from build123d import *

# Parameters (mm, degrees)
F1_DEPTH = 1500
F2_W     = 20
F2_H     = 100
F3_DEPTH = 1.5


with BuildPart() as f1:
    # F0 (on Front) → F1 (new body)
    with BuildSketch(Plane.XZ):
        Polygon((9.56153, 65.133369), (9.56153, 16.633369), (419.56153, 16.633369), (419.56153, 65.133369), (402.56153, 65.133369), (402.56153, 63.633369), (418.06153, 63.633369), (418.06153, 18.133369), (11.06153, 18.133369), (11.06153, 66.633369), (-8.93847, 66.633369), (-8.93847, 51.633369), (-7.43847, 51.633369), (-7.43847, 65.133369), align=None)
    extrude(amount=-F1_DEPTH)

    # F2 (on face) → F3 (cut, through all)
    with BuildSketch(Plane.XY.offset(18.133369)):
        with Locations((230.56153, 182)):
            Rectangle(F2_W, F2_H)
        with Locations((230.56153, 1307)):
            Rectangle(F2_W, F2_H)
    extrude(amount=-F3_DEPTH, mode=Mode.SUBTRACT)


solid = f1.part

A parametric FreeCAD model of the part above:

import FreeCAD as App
import Part
import Sketcher

V = App.Vector
Q = App.Units.Quantity

doc = App.newDocument("Part")
body = doc.addObject("PartDesign::Body", "Body")

sketch1 = body.newObject("Sketcher::SketchObject", "Sketch")
sketch1.AttachmentSupport = (doc.getObject("XZ_Plane"), [""])
sketch1.MapMode = "FlatFace"
sketch1.addGeometry([
    Part.LineSegment(V(9.6, 65.1, 0), V(9.6, 16.6, 0)),
    Part.LineSegment(V(9.6, 16.6, 0), V(419.6, 16.6, 0)),
    Part.LineSegment(V(419.6, 16.6, 0), V(419.6, 65.1, 0)),
    Part.LineSegment(V(419.6, 65.1, 0), V(402.6, 65.1, 0)),
    Part.LineSegment(V(402.6, 65.1, 0), V(402.6, 63.6, 0)),
    Part.LineSegment(V(402.6, 63.6, 0), V(418.1, 63.6, 0)),
    Part.LineSegment(V(418.1, 63.6, 0), V(418.1, 18.1, 0)),
    Part.LineSegment(V(418.1, 18.1, 0), V(11.1, 18.1, 0)),
    Part.LineSegment(V(11.1, 18.1, 0), V(11.1, 66.6, 0)),
    Part.LineSegment(V(11.1, 66.6, 0), V(-8.9, 66.6, 0)),
    Part.LineSegment(V(-8.9, 66.6, 0), V(-8.9, 51.6, 0)),
    Part.LineSegment(V(-8.9, 51.6, 0), V(-7.4, 51.6, 0)),
    Part.LineSegment(V(-7.4, 51.6, 0), V(-7.4, 65.1, 0)),
    Part.LineSegment(V(-7.4, 65.1, 0), V(9.6, 65.1, 0)),
], False)
sketch1.addConstraint([
    Sketcher.Constraint("Coincident", 0, 2, 1, 1),
    Sketcher.Constraint("Coincident", 1, 2, 2, 1),
    Sketcher.Constraint("Coincident", 2, 2, 3, 1),
    Sketcher.Constraint("Coincident", 3, 2, 4, 1),
    Sketcher.Constraint("Coincident", 4, 2, 5, 1),
    Sketcher.Constraint("Coincident", 5, 2, 6, 1),
    Sketcher.Constraint("Coincident", 6, 2, 7, 1),
    Sketcher.Constraint("Coincident", 7, 2, 8, 1),
    Sketcher.Constraint("Coincident", 8, 2, 9, 1),
    Sketcher.Constraint("Coincident", 9, 2, 10, 1),
    Sketcher.Constraint("Coincident", 10, 2, 11, 1),
    Sketcher.Constraint("Coincident", 11, 2, 12, 1),
    Sketcher.Constraint("Coincident", 12, 2, 13, 1),
    Sketcher.Constraint("Coincident", 13, 2, 0, 1),
    Sketcher.Constraint("Vertical", 0),
    Sketcher.Constraint("Horizontal", 1),
    Sketcher.Constraint("Vertical", 2),
    Sketcher.Constraint("Horizontal", 3),
    Sketcher.Constraint("Vertical", 4),
    Sketcher.Constraint("Horizontal", 5),
    Sketcher.Constraint("Vertical", 6),
    Sketcher.Constraint("Horizontal", 7),
    Sketcher.Constraint("Vertical", 8),
    Sketcher.Constraint("Horizontal", 9),
    Sketcher.Constraint("Vertical", 10),
    Sketcher.Constraint("Horizontal", 11),
    Sketcher.Constraint("Vertical", 12),
    Sketcher.Constraint("Horizontal", 13),
    Sketcher.Constraint("Horizontal", 3, 2, 12, 2),
    Sketcher.Constraint("Equal", 3, 13),
    Sketcher.Constraint("Equal", 11, 4),
    Sketcher.Constraint("Equal", 2, 8),
    Sketcher.Constraint("DistanceX", 1, 1, 1, 2, Q("410 mm")),
    Sketcher.Constraint("DistanceX", 3, 2, 3, 1, Q("17 mm")),
    Sketcher.Constraint("DistanceX", 7, 2, 7, 1, Q("407 mm")),
    Sketcher.Constraint("DistanceX", 9, 2, 9, 1, Q("20 mm")),
    Sketcher.Constraint("DistanceY", 10, 2, 10, 1, Q("15 mm")),
    Sketcher.Constraint("DistanceX", 5, 1, 5, 2, Q("15.5 mm")),
    Sketcher.Constraint("DistanceY", 0, 2, 0, 1, Q("48.5 mm")),
    Sketcher.Constraint("DistanceY", 6, 2, 6, 1, Q("45.5 mm")),
    Sketcher.Constraint("DistanceX", -1, 1, 0, 2, Q("9.56153 mm")),
    Sketcher.Constraint("DistanceY", -1, 1, 0, 2, Q("16.633369 mm")),
])
pad1 = body.newObject("PartDesign::Pad", "Pad")
pad1.Profile = sketch1
pad1.Length = 1500
pad1.Reversed = True

sketch2 = body.newObject("Sketcher::SketchObject", "Sketch001")
sketch2.AttachmentSupport = (doc.getObject("XY_Plane"), [""])
sketch2.MapMode = "FlatFace"
sketch2.AttachmentOffset = App.Placement(V(0, 0, 18.133369), App.Rotation())
sketch2.addGeometry([
    Part.LineSegment(V(221, 232, 0), V(221, 132, 0)),
    Part.LineSegment(V(221, 132, 0), V(241, 132, 0)),
    Part.LineSegment(V(241, 132, 0), V(241, 232, 0)),
    Part.LineSegment(V(241, 232, 0), V(221, 232, 0)),
    Part.LineSegment(V(221, 1357, 0), V(221, 1257, 0)),
    Part.LineSegment(V(221, 1257, 0), V(241, 1257, 0)),
    Part.LineSegment(V(241, 1257, 0), V(241, 1357, 0)),
    Part.LineSegment(V(241, 1357, 0), V(221, 1357, 0)),
], False)
sketch2.addConstraint([
    Sketcher.Constraint("Coincident", 0, 2, 1, 1),
    Sketcher.Constraint("Coincident", 1, 2, 2, 1),
    Sketcher.Constraint("Coincident", 2, 2, 3, 1),
    Sketcher.Constraint("Coincident", 3, 2, 0, 1),
    Sketcher.Constraint("Coincident", 4, 2, 5, 1),
    Sketcher.Constraint("Coincident", 5, 2, 6, 1),
    Sketcher.Constraint("Coincident", 6, 2, 7, 1),
    Sketcher.Constraint("Coincident", 7, 2, 4, 1),
    Sketcher.Constraint("Vertical", 0),
    Sketcher.Constraint("Horizontal", 1),
    Sketcher.Constraint("Vertical", 2),
    Sketcher.Constraint("Horizontal", 3),
    Sketcher.Constraint("Vertical", 4),
    Sketcher.Constraint("Horizontal", 5),
    Sketcher.Constraint("Vertical", 6),
    Sketcher.Constraint("Horizontal", 7),
    Sketcher.Constraint("Vertical", 3, 2, 4, 2),
    Sketcher.Constraint("Vertical", 2, 2, 5, 2),
    Sketcher.Constraint("Equal", 2, 4),
    Sketcher.Constraint("DistanceX", 1, 1, 1, 2, Q("20 mm")),
    Sketcher.Constraint("DistanceY", 0, 2, 0, 1, Q("100 mm")),
    Sketcher.Constraint("DistanceY", -1, 1, 0, 2, Q("132 mm")),
    Sketcher.Constraint("DistanceY", -1, 1, 4, 2, Q("1257 mm")),
    Sketcher.Constraint("DistanceX", -1, 1, 0, 2, Q("220.56153 mm")),
])
pocket1 = body.newObject("PartDesign::Pocket", "Pocket")
pocket1.Profile = sketch2
pocket1.Type = "ThroughAll"

doc.recompute()
